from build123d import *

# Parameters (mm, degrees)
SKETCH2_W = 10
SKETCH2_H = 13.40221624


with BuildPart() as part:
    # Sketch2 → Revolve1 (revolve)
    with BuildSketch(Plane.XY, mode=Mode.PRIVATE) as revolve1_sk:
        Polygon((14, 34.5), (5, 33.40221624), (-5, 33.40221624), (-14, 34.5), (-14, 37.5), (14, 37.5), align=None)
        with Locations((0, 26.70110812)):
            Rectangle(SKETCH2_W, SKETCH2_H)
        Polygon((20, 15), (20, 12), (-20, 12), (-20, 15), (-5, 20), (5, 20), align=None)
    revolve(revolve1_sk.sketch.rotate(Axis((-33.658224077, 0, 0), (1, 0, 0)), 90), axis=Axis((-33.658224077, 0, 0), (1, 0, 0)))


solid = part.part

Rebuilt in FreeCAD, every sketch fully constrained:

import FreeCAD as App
import Part
import Sketcher

V = App.Vector


def add_polygon(sketch, points):
    """Adds a closed chain of lines whose ends are joined by coincident constraints."""
    first, n = sketch.GeometryCount, len(points)
    for a, b in zip(points, points[1:] + points[:1]):
        sketch.addGeometry(Part.LineSegment(App.Vector(*a, 0), App.Vector(*b, 0)), False)
    for i in range(n):
        sketch.addConstraint(Sketcher.Constraint("Coincident", first + i, 2, first + (i + 1) % n, 1))

doc = App.newDocument("Part")
body = doc.addObject("PartDesign::Body", "Body")

sketch1 = doc.addObject("Sketcher::SketchObject", "Sketch")
body.addObject(sketch1)
sketch1.AttachmentSupport = (doc.XY_Plane, [""])
sketch1.MapMode = "FlatFace"
add_polygon(sketch1, [(5, 33.4), (14, 34.5), (14, 37.5), (-14, 37.5), (-14, 34.5), (-5, 33.4), (-5, 20), (-20, 15), (-20, 12), (20, 12), (20, 15), (5, 20)])
sketch1.addConstraint([
    Sketcher.Constraint("Vertical", 1),
    Sketcher.Constraint("Horizontal", 2),
    Sketcher.Constraint("Vertical", 3),
    Sketcher.Constraint("Vertical", 5),
    Sketcher.Constraint("Vertical", 7),
    Sketcher.Constraint("Horizontal", 8),
    Sketcher.Constraint("Vertical", 9),
    Sketcher.Constraint("Vertical", 11),
    Sketcher.Constraint("Symmetric", 0, 2, 3, 2, -2),
    Sketcher.Constraint("Symmetric", 6, 2, 9, 2, -2),
    Sketcher.Constraint("Symmetric", 5, 2, 10, 2, -2),
    Sketcher.Constraint("Horizontal", 4, 2, 11, 2),
    Sketcher.Constraint("Equal", 3, 7),
    Sketcher.Constraint("DistanceX", 2, 2, 2, 1, 28.0),
    Sketcher.Constraint("DistanceX", 8, 1, 8, 2, 40.0),
    Sketcher.Constraint("DistanceY", 1, 1, 1, 2, 3.0),
    Sketcher.Constraint("DistanceX", 4, 2, -1, 1, 5.0),
    Sketcher.Constraint("DistanceY", -1, 1, 5, 2, 20.0),
    Sketcher.Constraint("DistanceY", -1, 1, 6, 2, 15.0),
    Sketcher.Constraint("DistanceY", -1, 1, 0, 2, 34.5),
    Sketcher.Constraint("DistanceY", 5, 2, 5, 1, 13.402216),
])
revolution = doc.addObject("PartDesign::Revolution", "Revolution")
body.addObject(revolution)
revolution.Profile = sketch1
revolution.ReferenceAxis = (sketch1, ["H_Axis"])
revolution.Angle = 360

doc.recompute()
